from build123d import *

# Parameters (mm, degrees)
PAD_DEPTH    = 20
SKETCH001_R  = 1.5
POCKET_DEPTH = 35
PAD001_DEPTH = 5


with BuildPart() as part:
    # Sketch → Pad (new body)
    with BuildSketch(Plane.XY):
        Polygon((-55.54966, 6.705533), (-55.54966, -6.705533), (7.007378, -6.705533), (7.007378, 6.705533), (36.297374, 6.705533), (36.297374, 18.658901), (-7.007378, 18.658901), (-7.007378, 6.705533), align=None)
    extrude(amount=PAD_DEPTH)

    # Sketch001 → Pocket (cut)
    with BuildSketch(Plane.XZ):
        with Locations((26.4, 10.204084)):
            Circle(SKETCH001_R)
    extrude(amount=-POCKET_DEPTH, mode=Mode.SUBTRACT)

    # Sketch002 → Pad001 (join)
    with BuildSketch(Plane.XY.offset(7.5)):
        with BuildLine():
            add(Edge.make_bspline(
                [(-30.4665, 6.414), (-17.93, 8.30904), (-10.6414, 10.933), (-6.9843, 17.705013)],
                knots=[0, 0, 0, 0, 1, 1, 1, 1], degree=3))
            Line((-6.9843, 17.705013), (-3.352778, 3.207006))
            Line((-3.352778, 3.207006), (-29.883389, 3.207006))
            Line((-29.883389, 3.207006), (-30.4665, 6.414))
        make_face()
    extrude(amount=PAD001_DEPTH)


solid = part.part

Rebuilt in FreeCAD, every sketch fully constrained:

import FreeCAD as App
import Part
import Sketcher

V = App.Vector
Q = App.Units.Quantity


def add_polygon(sketch, points):
    """Adds a closed chain of lines whose ends are joined by coincident constraints."""
    first, n = sketch.GeometryCount, len(points)
    for a, b in zip(points, points[1:] + points[:1]):
        sketch.addGeometry(Part.LineSegment(App.Vector(*a, 0), App.Vector(*b, 0)), False)
    for i in range(n):
        sketch.addConstraint(Sketcher.Constraint("Coincident", first + i, 2, first + (i + 1) % n, 1))

doc = App.newDocument("Part")
params = doc.addObject("Spreadsheet::Sheet", "Params")
for row, (alias, value) in enumerate([
    ("pad1_length", "20 mm"),
    ("sketch2_diameter", "3 mm"),
    ("pocket1_length", "35 mm"),
    ("pad2_length", "5 mm"),
], start=1):
    params.set(f"A{row}", alias)
    params.set(f"B{row}", "=" + value)
    params.setAlias(f"B{row}", alias)

body = doc.addObject("PartDesign::Body", "Body")

sketch1 = body.newObject("Sketcher::SketchObject", "Sketch")
sketch1.AttachmentSupport = (doc.getObject("XY_Plane"), [""])
sketch1.MapMode = "FlatFace"
add_polygon(sketch1, [(-56, 7), (-56, -7), (7, -7), (7, 7), (36, 7), (36, 19), (-7, 19), (-7, 7)])
sketch1.addConstraint([
    Sketcher.Constraint("Vertical", 0),
    Sketcher.Constraint("Horizontal", 1),
    Sketcher.Constraint("Vertical", 2),
    Sketcher.Constraint("Horizontal", 3),
    Sketcher.Constraint("Vertical", 4),
    Sketcher.Constraint("Horizontal", 5),
    Sketcher.Constraint("Vertical", 6),
    Sketcher.Constraint("Horizontal", 7),
    Sketcher.Constraint("Symmetric", 1, 2, 6, 2, -1, 1),
    Sketcher.Constraint("Horizontal", 3, 2, 6, 2),
    Sketcher.Constraint("DistanceX", 1, 1, 1, 2, Q("62.557038 mm")),
    Sketcher.Constraint("DistanceY", 4, 1, 4, 2, Q("11.953368 mm")),
    Sketcher.Constraint("DistanceY", -1, 1, 4, 2, Q("18.658901 mm")),
    Sketcher.Constraint("DistanceX", 3, 1, 3, 2, Q("29.289996 mm")),
    Sketcher.Constraint("DistanceX", 5, 2, 5, 1, Q("43.304752 mm")),
])
pad1 = body.newObject("PartDesign::Pad", "Pad")
pad1.Profile = sketch1
pad1.setExpression("Length", "Params.pad1_length")

sketch2 = body.newObject("Sketcher::SketchObject", "Sketch001")
sketch2.AttachmentSupport = (doc.getObject("XZ_Plane"), [""])
sketch2.MapMode = "FlatFace"
sketch2.addGeometry(Part.Circle(V(26.4, 10.2, 0), V(0, 0, 1), 1.5), False)
sketch2.addConstraint([
    Sketcher.Constraint("Diameter", 0, Q("3 mm")),
    Sketcher.Constraint("DistanceX", -1, 1, 0, 3, Q("26.4 mm")),
    Sketcher.Constraint("DistanceY", -1, 1, 0, 3, Q("10.204084 mm")),
])
sketch2.setExpression("Constraints[0]", "Params.sketch2_diameter")
pocket1 = body.newObject("PartDesign::Pocket", "Pocket")
pocket1.Profile = sketch2
pocket1.setExpression("Length", "Params.pocket1_length")

sketch3 = body.newObject("Sketcher::SketchObject", "Sketch002")
sketch3.AttachmentSupport = (doc.getObject("XY_Plane"), [""])
sketch3.MapMode = "FlatFace"
sketch3.AttachmentOffset = App.Placement(V(0, 0, 7.5), App.Rotation())
sketch3.addGeometry([
    Part.BSplineCurve([V(-30.4665, 6.414, 0), V(-17.93, 8.30904, 0), V(-10.6414, 10.933, 0), V(-6.9843, 17.705013, 0)], [4, 4], [0, 1], False, 3, [1, 1, 1, 1], False),
    Part.LineSegment(V(-30.4665, 6.414, 0), V(-29.883389, 3.207006, 0)),
    Part.LineSegment(V(-29.883389, 3.207006, 0), V(-3.352778, 3.207006, 0)),
    Part.LineSegment(V(-3.352778, 3.207006, 0), V(-6.9843, 17.705013, 0)),
], False)
sketch3.addConstraint([
    Sketcher.Constraint("Block", 0),
    Sketcher.Constraint("Coincident", 0, 1, 1, 1),
    Sketcher.Constraint("Coincident", 1, 2, 2, 1),
    Sketcher.Constraint("Coincident", 2, 2, 3, 1),
    Sketcher.Constraint("Coincident", 3, 2, 0, 2),
    Sketcher.Constraint("Horizontal", 2),
    Sketcher.Constraint("DistanceX", 2, 1, 2, 2, Q("26.530611 mm")),
    Sketcher.Constraint("DistanceX", 1, 2, -1, 1, Q("29.883389 mm")),
    Sketcher.Constraint("Distance", 1, Q("3.259575 mm")),
])
pad2 = body.newObject("PartDesign::Pad", "Pad001")
pad2.Profile = sketch3
pad2.setExpression("Length", "Params.pad2_length")

doc.recompute()
